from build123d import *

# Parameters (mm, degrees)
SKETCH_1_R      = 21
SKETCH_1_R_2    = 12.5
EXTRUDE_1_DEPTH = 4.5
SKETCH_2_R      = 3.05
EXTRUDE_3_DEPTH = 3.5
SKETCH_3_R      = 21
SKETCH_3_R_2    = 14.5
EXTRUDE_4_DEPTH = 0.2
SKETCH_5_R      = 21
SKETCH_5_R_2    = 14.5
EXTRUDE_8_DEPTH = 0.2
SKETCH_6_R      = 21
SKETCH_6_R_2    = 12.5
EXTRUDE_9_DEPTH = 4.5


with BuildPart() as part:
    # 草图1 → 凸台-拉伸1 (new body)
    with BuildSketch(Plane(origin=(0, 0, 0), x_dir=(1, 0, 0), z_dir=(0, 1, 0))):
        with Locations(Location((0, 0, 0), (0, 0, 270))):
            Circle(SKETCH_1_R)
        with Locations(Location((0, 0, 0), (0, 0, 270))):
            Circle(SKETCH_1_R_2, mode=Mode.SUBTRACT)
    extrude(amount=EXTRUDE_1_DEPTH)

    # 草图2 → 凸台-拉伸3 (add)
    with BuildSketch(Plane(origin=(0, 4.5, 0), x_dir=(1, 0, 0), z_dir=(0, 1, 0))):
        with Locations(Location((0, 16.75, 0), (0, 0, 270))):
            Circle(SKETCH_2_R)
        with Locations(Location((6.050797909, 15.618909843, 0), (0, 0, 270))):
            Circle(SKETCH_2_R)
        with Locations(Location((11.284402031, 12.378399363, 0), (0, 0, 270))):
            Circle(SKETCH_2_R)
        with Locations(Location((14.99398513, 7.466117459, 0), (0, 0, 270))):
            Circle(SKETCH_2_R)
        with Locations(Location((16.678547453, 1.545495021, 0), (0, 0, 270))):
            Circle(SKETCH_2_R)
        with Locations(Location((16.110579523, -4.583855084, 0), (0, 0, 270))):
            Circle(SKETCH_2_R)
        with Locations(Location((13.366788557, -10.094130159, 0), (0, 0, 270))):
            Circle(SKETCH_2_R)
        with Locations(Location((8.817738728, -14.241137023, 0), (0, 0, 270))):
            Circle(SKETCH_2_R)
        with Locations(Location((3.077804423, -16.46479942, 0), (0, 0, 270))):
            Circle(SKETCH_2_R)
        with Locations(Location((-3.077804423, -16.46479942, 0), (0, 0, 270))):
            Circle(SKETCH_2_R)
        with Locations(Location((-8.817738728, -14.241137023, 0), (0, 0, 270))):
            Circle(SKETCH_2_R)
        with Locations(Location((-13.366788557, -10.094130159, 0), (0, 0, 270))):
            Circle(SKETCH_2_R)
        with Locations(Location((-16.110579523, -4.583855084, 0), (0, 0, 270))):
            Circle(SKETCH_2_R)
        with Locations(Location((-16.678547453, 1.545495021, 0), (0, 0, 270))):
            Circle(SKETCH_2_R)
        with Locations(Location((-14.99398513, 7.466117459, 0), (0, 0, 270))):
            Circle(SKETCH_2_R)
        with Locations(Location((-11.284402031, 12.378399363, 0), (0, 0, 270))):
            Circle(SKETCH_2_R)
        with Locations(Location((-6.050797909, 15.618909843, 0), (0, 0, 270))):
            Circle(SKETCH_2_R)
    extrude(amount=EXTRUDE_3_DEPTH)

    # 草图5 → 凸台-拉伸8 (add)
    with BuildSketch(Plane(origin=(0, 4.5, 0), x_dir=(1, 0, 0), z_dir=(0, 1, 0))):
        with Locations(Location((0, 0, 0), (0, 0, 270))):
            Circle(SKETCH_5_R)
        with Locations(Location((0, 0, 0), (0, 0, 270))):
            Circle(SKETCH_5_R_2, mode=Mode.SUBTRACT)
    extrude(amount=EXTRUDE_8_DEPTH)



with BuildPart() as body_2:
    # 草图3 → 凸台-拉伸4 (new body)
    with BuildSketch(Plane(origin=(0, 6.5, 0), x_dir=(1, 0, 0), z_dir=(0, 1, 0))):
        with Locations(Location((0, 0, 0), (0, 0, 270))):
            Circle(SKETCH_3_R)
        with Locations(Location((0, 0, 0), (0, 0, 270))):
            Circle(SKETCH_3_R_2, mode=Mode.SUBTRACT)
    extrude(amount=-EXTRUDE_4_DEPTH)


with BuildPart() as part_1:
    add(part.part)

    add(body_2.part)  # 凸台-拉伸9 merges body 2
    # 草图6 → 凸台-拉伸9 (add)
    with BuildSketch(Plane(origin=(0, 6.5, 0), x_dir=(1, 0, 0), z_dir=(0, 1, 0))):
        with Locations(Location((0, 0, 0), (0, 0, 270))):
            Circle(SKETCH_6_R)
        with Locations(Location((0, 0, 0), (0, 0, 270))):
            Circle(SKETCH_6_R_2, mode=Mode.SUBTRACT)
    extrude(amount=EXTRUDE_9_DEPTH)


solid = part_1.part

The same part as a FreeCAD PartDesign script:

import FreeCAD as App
import Part
import Sketcher

doc = App.newDocument("Part")
body = doc.addObject("PartDesign::Body", "Body")

# Sketch on XZ plane
sketch1 = body.newObject("Sketcher::SketchObject", "Sketch")
sketch1.AttachmentSupport = (doc.getObject("XZ_Plane"), [""])
sketch1.MapMode = "FlatFace"
sketch1.addGeometry(Part.Circle(App.Vector(0, 0, 0), App.Vector(0, 0, 1), 21), False)
sketch1.addGeometry(Part.Circle(App.Vector(0, 0, 0), App.Vector(0, 0, 1), 12), False)
sketch1.addConstraint(Sketcher.Constraint("Coincident", 0, 3, -1, 1))
sketch1.addConstraint(Sketcher.Constraint("Coincident", 1, 3, -1, 1))
sketch1.addConstraint(Sketcher.Constraint("Diameter", 0, 42.0))
sketch1.addConstraint(Sketcher.Constraint("Diameter", 1, 25.0))
pad1 = body.newObject("PartDesign::Pad", "Pad")
pad1.Profile = sketch1
pad1.Length = 4.5
pad1.Reversed = True

# Sketch on XZ plane
sketch2 = body.newObject("Sketcher::SketchObject", "Sketch001")
sketch2.AttachmentSupport = (doc.getObject("XZ_Plane"), [""])
sketch2.MapMode = "FlatFace"
sketch2.AttachmentOffset = App.Placement(App.Vector(0, 0, -4.5), App.Rotation())
sketch2.addGeometry(Part.Circle(App.Vector(0, -16.8, 0), App.Vector(0, 0, 1), 3), False)
sketch2.addGeometry(Part.Circle(App.Vector(6.1, -15.6, 0), App.Vector(0, 0, 1), 3), False)
sketch2.addGeometry(Part.Circle(App.Vector(11.3, -12.4, 0), App.Vector(0, 0, 1), 3), False)
sketch2.addGeometry(Part.Circle(App.Vector(15, -7.5, 0), App.Vector(0, 0, 1), 3), False)
sketch2.addGeometry(Part.Circle(App.Vector(16.7, -1.5, 0), App.Vector(0, 0, 1), 3), False)
sketch2.addGeometry(Part.Circle(App.Vector(16.1, 4.6, 0), App.Vector(0, 0, 1), 3), False)
sketch2.addGeometry(Part.Circle(App.Vector(13.4, 10.1, 0), App.Vector(0, 0, 1), 3), False)
sketch2.addGeometry(Part.Circle(App.Vector(8.8, 14.2, 0), App.Vector(0, 0, 1), 3), False)
sketch2.addGeometry(Part.Circle(App.Vector(3.1, 16.5, 0), App.Vector(0, 0, 1), 3), False)
sketch2.addGeometry(Part.Circle(App.Vector(-3.1, 16.5, 0), App.Vector(0, 0, 1), 3), False)
sketch2.addGeometry(Part.Circle(App.Vector(-8.8, 14.2, 0), App.Vector(0, 0, 1), 3), False)
sketch2.addGeometry(Part.Circle(App.Vector(-13.4, 10.1, 0), App.Vector(0, 0, 1), 3), False)
sketch2.addGeometry(Part.Circle(App.Vector(-16.1, 4.6, 0), App.Vector(0, 0, 1), 3), False)
sketch2.addGeometry(Part.Circle(App.Vector(-16.7, -1.5, 0), App.Vector(0, 0, 1), 3), False)
sketch2.addGeometry(Part.Circle(App.Vector(-15, -7.5, 0), App.Vector(0, 0, 1), 3), False)
sketch2.addGeometry(Part.Circle(App.Vector(-11.3, -12.4, 0), App.Vector(0, 0, 1), 3), False)
sketch2.addGeometry(Part.Circle(App.Vector(-6.1, -15.6, 0), App.Vector(0, 0, 1), 3), False)
sketch2.addConstraint(Sketcher.Constraint("Equal", 0, 1))
sketch2.addConstraint(Sketcher.Constraint("Equal", 1, 2))
sketch2.addConstraint(Sketcher.Constraint("Equal", 2, 3))
sketch2.addConstraint(Sketcher.Constraint("Equal", 3, 4))
sketch2.addConstraint(Sketcher.Constraint("Equal", 4, 5))
sketch2.addConstraint(Sketcher.Constraint("Equal", 5, 6))
sketch2.addConstraint(Sketcher.Constraint("Equal", 6, 7))
sketch2.addConstraint(Sketcher.Constraint("Equal", 7, 8))
sketch2.addConstraint(Sketcher.Constraint("Equal", 8, 9))
sketch2.addConstraint(Sketcher.Constraint("Equal", 9, 10))
sketch2.addConstraint(Sketcher.Constraint("Equal", 10, 11))
sketch2.addConstraint(Sketcher.Constraint("Equal", 11, 12))
sketch2.addConstraint(Sketcher.Constraint("Equal", 12, 13))
sketch2.addConstraint(Sketcher.Constraint("Equal", 13, 14))
sketch2.addConstraint(Sketcher.Constraint("Equal", 14, 15))
sketch2.addConstraint(Sketcher.Constraint("Equal", 15, 16))
sketch2.addConstraint(Sketcher.Constraint("Symmetric", 8, 3, 9, 3, -2))
sketch2.addConstraint(Sketcher.Constraint("Symmetric", 7, 3, 10, 3, -2))
sketch2.addConstraint(Sketcher.Constraint("Symmetric", 6, 3, 11, 3, -2))
sketch2.addConstraint(Sketcher.Constraint("Symmetric", 5, 3, 12, 3, -2))
sketch2.addConstraint(Sketcher.Constraint("Symmetric", 4, 3, 13, 3, -2))
sketch2.addConstraint(Sketcher.Constraint("Symmetric", 3, 3, 14, 3, -2))
sketch2.addConstraint(Sketcher.Constraint("Symmetric", 2, 3, 15, 3, -2))
sketch2.addConstraint(Sketcher.Constraint("Symmetric", 1, 3, 16, 3, -2))
sketch2.addConstraint(Sketcher.Constraint("PointOnObject", 0, 3, -2))
sketch2.addConstraint(Sketcher.Constraint("Diameter", 0, 6.1))
sketch2.addConstraint(Sketcher.Constraint("DistanceY", 0, 3, -1, 1, 16.75))
sketch2.addConstraint(Sketcher.Constraint("DistanceY", 2, 3, -1, 1, 12.378399))
sketch2.addConstraint(Sketcher.Constraint("DistanceY", -1, 1, 8, 3, 16.464799))
sketch2.addConstraint(Sketcher.Constraint("DistanceX", 15, 3, 1, 3, 17.3352))
sketch2.addConstraint(Sketcher.Constraint("DistanceY", 1, 3, -1, 1, 15.61891))
sketch2.addConstraint(Sketcher.Constraint("DistanceX", -1, 1, 5, 3, 16.11058))
sketch2.addConstraint(Sketcher.Constraint("DistanceX", -1, 1, 6, 3, 13.366789))
sketch2.addConstraint(Sketcher.Constraint("DistanceY", -1, 1, 6, 3, 10.09413))
sketch2.addConstraint(Sketcher.Constraint("DistanceX", -1, 1, 7, 3, 8.817739))
sketch2.addConstraint(Sketcher.Constraint("DistanceY", 2, 3, 3, 3, 4.912282))
sketch2.addConstraint(Sketcher.Constraint("DistanceX", 1, 3, 4, 3, 10.62775))
sketch2.addConstraint(Sketcher.Constraint("DistanceY", 4, 3, 5, 3, 6.12935))
sketch2.addConstraint(Sketcher.Constraint("DistanceX", 1, 3, 5, 3, 10.059782))
sketch2.addConstraint(Sketcher.Constraint("DistanceY", 5, 3, 7, 3, 9.657282))
sketch2.addConstraint(Sketcher.Constraint("DistanceX", 8, 3, 3, 3, 11.916181))
sketch2.addConstraint(Sketcher.Constraint("DistanceX", 9, 3, 8, 3, 6.155609))
sketch2.addConstraint(Sketcher.Constraint("DistanceY", 4, 3, -1, 1, 1.545495))
pad2 = body.newObject("PartDesign::Pad", "Pad001")
pad2.Profile = sketch2
pad2.Length = 3.5
pad2.Reversed = True

# Sketch on XZ plane
sketch3 = body.newObject("Sketcher::SketchObject", "Sketch002")
sketch3.AttachmentSupport = (doc.getObject("XZ_Plane"), [""])
sketch3.MapMode = "FlatFace"
sketch3.AttachmentOffset = App.Placement(App.Vector(0, 0, -4.5), App.Rotation())
sketch3.addGeometry(Part.Circle(App.Vector(0, 0, 0), App.Vector(0, 0, 1), 21), False)
sketch3.addGeometry(Part.Circle(App.Vector(0, 0, 0), App.Vector(0, 0, 1), 14), False)
sketch3.addConstraint(Sketcher.Constraint("Coincident", 0, 3, -1, 1))
sketch3.addConstraint(Sketcher.Constraint("Coincident", 1, 3, -1, 1))
sketch3.addConstraint(Sketcher.Constraint("Diameter", 0, 42.0))
sketch3.addConstraint(Sketcher.Constraint("Diameter", 1, 29.0))
pad3 = body.newObject("PartDesign::Pad", "Pad002")
pad3.Profile = sketch3
pad3.Length = 0.2
pad3.Reversed = True
body2 = doc.addObject("PartDesign::Body", "Body001")

# Sketch on XZ plane
sketch4 = body2.newObject("Sketcher::SketchObject", "Sketch003")
sketch4.AttachmentSupport = (doc.getObject("XZ_Plane001"), [""])
sketch4.MapMode = "FlatFace"
sketch4.AttachmentOffset = App.Placement(App.Vector(0, 0, -6.5), App.Rotation())
sketch4.addGeometry(Part.Circle(App.Vector(0, 0, 0), App.Vector(0, 0, 1), 21), False)
sketch4.addGeometry(Part.Circle(App.Vector(0, 0, 0), App.Vector(0, 0, 1), 14), False)
sketch4.addConstraint(Sketcher.Constraint("Coincident", 0, 3, -1, 1))
sketch4.addConstraint(Sketcher.Constraint("Coincident", 1, 3, -1, 1))
sketch4.addConstraint(Sketcher.Constraint("Diameter", 0, 42.0))
sketch4.addConstraint(Sketcher.Constraint("Diameter", 1, 29.0))
pad4 = body2.newObject("PartDesign::Pad", "Pad003")
pad4.Profile = sketch4
pad4.Length = 0.2
doc.recompute()

boolean = body.newObject("PartDesign::Boolean", "Boolean")
boolean.Type = "Fuse"
boolean.addObjects([body2])

# Sketch on XZ plane
sketch5 = body.newObject("Sketcher::SketchObject", "Sketch004")
sketch5.AttachmentSupport = (doc.getObject("XZ_Plane"), [""])
sketch5.MapMode = "FlatFace"
sketch5.AttachmentOffset = App.Placement(App.Vector(0, 0, -6.5), App.Rotation())
sketch5.addGeometry(Part.Circle(App.Vector(0, 0, 0), App.Vector(0, 0, 1), 21), False)
sketch5.addGeometry(Part.Circle(App.Vector(0, 0, 0), App.Vector(0, 0, 1), 12), False)
sketch5.addConstraint(Sketcher.Constraint("Coincident", 0, 3, -1, 1))
sketch5.addConstraint(Sketcher.Constraint("Coincident", 1, 3, -1, 1))
sketch5.addConstraint(Sketcher.Constraint("Diameter", 0, 42.0))
sketch5.addConstraint(Sketcher.Constraint("Diameter", 1, 25.0))
pad5 = body.newObject("PartDesign::Pad", "Pad004")
pad5.Profile = sketch5
pad5.Length = 4.5
pad5.Reversed = True

doc.recompute()
